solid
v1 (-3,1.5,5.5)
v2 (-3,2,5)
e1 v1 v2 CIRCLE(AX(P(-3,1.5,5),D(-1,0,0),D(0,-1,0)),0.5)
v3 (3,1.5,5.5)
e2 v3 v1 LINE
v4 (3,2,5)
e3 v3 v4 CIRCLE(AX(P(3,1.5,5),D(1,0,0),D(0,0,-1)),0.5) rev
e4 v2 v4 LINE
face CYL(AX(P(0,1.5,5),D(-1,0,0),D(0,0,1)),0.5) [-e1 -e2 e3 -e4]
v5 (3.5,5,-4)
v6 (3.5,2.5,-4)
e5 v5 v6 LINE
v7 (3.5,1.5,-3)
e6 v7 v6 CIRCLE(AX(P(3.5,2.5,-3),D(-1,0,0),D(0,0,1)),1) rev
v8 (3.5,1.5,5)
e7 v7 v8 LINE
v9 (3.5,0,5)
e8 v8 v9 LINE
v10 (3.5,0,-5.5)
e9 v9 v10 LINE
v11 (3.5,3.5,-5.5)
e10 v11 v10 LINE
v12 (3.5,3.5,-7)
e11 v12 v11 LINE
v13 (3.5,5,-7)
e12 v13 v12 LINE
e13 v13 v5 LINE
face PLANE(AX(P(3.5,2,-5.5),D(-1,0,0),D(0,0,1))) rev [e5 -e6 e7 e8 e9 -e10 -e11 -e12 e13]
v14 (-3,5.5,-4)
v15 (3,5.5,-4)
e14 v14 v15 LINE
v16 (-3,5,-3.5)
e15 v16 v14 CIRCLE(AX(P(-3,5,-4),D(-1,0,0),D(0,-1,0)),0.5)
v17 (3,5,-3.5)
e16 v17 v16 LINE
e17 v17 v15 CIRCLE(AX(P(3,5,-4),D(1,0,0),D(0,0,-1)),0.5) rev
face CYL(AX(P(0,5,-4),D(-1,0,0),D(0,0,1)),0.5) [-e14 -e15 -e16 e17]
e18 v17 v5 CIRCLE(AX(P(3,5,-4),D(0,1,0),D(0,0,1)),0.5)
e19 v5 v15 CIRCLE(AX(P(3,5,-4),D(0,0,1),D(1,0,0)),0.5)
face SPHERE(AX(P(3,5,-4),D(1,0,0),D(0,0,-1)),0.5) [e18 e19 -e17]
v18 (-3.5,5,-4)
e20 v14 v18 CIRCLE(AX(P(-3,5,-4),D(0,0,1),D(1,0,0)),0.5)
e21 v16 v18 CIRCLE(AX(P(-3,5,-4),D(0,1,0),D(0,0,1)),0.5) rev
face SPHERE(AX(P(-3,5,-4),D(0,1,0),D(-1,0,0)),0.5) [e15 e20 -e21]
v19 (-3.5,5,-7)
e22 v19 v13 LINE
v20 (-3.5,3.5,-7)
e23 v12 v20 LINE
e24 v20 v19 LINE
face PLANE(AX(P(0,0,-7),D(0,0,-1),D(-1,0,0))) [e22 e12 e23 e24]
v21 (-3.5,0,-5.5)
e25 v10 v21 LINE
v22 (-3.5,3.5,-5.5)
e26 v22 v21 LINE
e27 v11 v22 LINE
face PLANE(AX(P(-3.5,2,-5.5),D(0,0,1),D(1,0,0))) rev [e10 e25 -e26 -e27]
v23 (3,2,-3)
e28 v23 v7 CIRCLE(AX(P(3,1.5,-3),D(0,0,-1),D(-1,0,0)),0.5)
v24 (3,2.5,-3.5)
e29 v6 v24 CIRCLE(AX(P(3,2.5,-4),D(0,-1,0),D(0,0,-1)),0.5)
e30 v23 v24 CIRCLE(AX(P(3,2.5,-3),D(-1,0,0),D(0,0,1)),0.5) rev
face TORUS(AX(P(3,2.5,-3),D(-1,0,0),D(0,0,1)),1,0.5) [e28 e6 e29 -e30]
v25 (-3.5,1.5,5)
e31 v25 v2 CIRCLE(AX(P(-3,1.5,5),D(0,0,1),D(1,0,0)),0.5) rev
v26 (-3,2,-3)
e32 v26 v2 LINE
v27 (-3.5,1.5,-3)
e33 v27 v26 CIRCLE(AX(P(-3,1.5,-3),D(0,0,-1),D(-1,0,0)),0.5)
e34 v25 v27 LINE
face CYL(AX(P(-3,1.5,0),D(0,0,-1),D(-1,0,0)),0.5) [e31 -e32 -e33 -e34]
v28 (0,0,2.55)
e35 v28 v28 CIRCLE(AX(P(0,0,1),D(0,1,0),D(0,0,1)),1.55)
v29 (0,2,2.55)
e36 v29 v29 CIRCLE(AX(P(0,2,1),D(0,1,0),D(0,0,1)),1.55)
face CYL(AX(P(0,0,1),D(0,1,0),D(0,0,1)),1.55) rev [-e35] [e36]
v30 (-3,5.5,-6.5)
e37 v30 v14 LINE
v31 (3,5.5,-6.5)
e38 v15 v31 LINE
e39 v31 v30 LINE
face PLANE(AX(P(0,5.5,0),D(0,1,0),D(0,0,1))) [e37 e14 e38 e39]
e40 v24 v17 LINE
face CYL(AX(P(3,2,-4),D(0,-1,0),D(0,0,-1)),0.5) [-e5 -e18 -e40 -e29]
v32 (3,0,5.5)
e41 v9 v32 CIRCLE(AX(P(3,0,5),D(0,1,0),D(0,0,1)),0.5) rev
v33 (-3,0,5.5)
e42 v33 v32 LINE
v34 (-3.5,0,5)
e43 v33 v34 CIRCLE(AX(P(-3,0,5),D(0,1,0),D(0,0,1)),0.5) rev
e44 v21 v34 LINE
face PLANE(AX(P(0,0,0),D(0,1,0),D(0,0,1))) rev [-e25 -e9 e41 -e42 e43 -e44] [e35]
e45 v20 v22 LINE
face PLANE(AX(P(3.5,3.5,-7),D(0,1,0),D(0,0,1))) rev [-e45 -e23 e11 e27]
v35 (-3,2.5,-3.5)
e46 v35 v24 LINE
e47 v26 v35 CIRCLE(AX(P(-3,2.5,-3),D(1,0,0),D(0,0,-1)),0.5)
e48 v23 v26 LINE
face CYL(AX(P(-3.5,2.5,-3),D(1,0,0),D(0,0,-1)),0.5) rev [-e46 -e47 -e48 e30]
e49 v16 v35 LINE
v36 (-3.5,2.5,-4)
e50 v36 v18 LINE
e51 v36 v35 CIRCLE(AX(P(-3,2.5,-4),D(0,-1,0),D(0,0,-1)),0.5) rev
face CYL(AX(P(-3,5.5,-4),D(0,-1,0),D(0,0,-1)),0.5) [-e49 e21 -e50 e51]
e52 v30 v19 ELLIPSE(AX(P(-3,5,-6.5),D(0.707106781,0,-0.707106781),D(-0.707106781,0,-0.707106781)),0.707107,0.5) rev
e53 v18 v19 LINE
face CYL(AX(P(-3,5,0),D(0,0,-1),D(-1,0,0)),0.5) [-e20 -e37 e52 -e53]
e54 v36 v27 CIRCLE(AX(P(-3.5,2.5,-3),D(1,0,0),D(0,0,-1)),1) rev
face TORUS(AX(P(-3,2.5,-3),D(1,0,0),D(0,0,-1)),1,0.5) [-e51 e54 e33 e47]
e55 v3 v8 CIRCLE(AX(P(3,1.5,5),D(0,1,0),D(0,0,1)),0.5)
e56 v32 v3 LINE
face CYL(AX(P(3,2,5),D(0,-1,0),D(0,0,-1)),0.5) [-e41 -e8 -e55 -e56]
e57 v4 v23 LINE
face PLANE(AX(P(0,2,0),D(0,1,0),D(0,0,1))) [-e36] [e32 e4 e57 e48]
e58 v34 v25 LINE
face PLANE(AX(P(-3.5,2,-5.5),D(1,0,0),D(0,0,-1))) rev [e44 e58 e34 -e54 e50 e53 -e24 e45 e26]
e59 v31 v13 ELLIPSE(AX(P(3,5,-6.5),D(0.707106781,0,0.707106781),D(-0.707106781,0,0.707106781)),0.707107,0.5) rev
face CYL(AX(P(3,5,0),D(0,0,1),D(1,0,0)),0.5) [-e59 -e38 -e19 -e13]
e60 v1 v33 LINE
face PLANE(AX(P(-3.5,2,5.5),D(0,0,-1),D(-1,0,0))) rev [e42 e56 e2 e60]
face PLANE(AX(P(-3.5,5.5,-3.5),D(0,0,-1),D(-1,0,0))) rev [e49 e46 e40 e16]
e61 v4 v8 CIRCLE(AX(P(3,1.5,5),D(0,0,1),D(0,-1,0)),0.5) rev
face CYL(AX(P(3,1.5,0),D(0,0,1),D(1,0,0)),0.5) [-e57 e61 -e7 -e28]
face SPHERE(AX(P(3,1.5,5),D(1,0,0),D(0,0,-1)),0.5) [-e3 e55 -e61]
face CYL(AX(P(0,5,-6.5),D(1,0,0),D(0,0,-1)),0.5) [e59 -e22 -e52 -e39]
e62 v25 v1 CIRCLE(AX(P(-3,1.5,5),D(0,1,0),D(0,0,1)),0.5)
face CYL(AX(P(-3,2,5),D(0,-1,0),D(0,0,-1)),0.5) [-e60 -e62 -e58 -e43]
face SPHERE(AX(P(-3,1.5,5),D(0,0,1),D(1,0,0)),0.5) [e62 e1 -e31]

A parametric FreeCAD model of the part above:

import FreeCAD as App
import Part
import Sketcher


def edges_at(feature, points):
    """Names of the edges that pass closest to the given points."""
    edges = feature.Shape.Edges
    near = lambda p: min(range(len(edges)), key=lambda i: edges[i].distToShape(Part.Vertex(*p))[0])
    return sorted({f"Edge{near(p) + 1}" for p in points})

doc = App.newDocument("Part")
body = doc.addObject("PartDesign::Body", "Body")

# Sketch on XZ plane
sketch1 = doc.addObject("Sketcher::SketchObject", "Sketch")
body.addObject(sketch1)
sketch1.AttachmentSupport = (doc.XZ_Plane, [""])
sketch1.MapMode = "FlatFace"
sketch1.addGeometry([
    Part.LineSegment(App.Vector(-3.5, -5.5, 0), App.Vector(-3.5, 5.5, 0)),
    Part.LineSegment(App.Vector(-3.5, 5.5, 0), App.Vector(3.5, 5.5, 0)),
    Part.LineSegment(App.Vector(3.5, 5.5, 0), App.Vector(3.5, -5.5, 0)),
    Part.LineSegment(App.Vector(3.5, -5.5, 0), App.Vector(-3.5, -5.5, 0)),
], False)
sketch1.addConstraint([
    Sketcher.Constraint("Coincident", 0, 2, 1, 1),
    Sketcher.Constraint("Coincident", 1, 2, 2, 1),
    Sketcher.Constraint("Coincident", 2, 2, 3, 1),
    Sketcher.Constraint("Coincident", 3, 2, 0, 1),
    Sketcher.Constraint("Vertical", 0),
    Sketcher.Constraint("Horizontal", 1),
    Sketcher.Constraint("Vertical", 2),
    Sketcher.Constraint("Horizontal", 3),
    Sketcher.Constraint("Symmetric", 0, 2, 2, 2, -1, 1),
    Sketcher.Constraint("DistanceX", 1, 1, 1, 2, 7.0),
    Sketcher.Constraint("DistanceY", 0, 1, 0, 2, 11.0),
])
pad1 = doc.addObject("PartDesign::Pad", "Pad")
body.addObject(pad1)
pad1.Profile = sketch1
pad1.Length = 2
pad1.Reversed = True

# Sketch on XZ plane
sketch2 = doc.addObject("Sketcher::SketchObject", "Sketch001")
body.addObject(sketch2)
sketch2.AttachmentSupport = (doc.XZ_Plane, [""])
sketch2.MapMode = "FlatFace"
sketch2.AttachmentOffset = App.Placement(App.Vector(0, 0, -2), App.Rotation())
sketch2.addGeometry([
    Part.LineSegment(App.Vector(-3.5, -5.5, 0), App.Vector(-3.5, -3.5, 0)),
    Part.LineSegment(App.Vector(-3.5, -3.5, 0), App.Vector(3.5, -3.5, 0)),
    Part.LineSegment(App.Vector(3.5, -3.5, 0), App.Vector(3.5, -5.5, 0)),
    Part.LineSegment(App.Vector(3.5, -5.5, 0), App.Vector(-3.5, -5.5, 0)),
], False)
sketch2.addConstraint([
    Sketcher.Constraint("Coincident", 0, 2, 1, 1),
    Sketcher.Constraint("Coincident", 1, 2, 2, 1),
    Sketcher.Constraint("Coincident", 2, 2, 3, 1),
    Sketcher.Constraint("Coincident", 3, 2, 0, 1),
    Sketcher.Constraint("Vertical", 0),
    Sketcher.Constraint("Horizontal", 1),
    Sketcher.Constraint("Vertical", 2),
    Sketcher.Constraint("Horizontal", 3),
    Sketcher.Constraint("DistanceX", 1, 1, 1, 2, 7.0),
    Sketcher.Constraint("DistanceY", 0, 1, 0, 2, 2.0),
    Sketcher.Constraint("DistanceX", 0, 2, -1, 1, 3.5),
    Sketcher.Constraint("DistanceY", 0, 2, -1, 1, 3.5),
])
pad2 = doc.addObject("PartDesign::Pad", "Pad001")
body.addObject(pad2)
pad2.Profile = sketch2
pad2.Length = 3.5
pad2.Reversed = True

# Sketch on XY plane
sketch3 = doc.addObject("Sketcher::SketchObject", "Sketch002")
body.addObject(sketch3)
sketch3.AttachmentSupport = (doc.XY_Plane, [""])
sketch3.MapMode = "FlatFace"
sketch3.AttachmentOffset = App.Placement(App.Vector(0, 0, -5.5), App.Rotation())
sketch3.addGeometry([
    Part.LineSegment(App.Vector(3.5, 5.5, 0), App.Vector(3.5, 3.5, 0)),
    Part.LineSegment(App.Vector(3.5, 3.5, 0), App.Vector(-3.5, 3.5, 0)),
    Part.LineSegment(App.Vector(-3.5, 3.5, 0), App.Vector(-3.5, 5.5, 0)),
    Part.LineSegment(App.Vector(-3.5, 5.5, 0), App.Vector(3.5, 5.5, 0)),
], False)
sketch3.addConstraint([
    Sketcher.Constraint("Coincident", 0, 2, 1, 1),
    Sketcher.Constraint("Coincident", 1, 2, 2, 1),
    Sketcher.Constraint("Coincident", 2, 2, 3, 1),
    Sketcher.Constraint("Coincident", 3, 2, 0, 1),
    Sketcher.Constraint("Vertical", 0),
    Sketcher.Constraint("Horizontal", 1),
    Sketcher.Constraint("Vertical", 2),
    Sketcher.Constraint("Horizontal", 3),
    Sketcher.Constraint("DistanceX", 1, 2, 1, 1, 7.0),
    Sketcher.Constraint("DistanceY", 0, 2, 0, 1, 2.0),
    Sketcher.Constraint("DistanceX", -1, 1, 0, 2, 3.5),
    Sketcher.Constraint("DistanceY", -1, 1, 0, 2, 3.5),
])
pad3 = doc.addObject("PartDesign::Pad", "Pad002")
body.addObject(pad3)
pad3.Profile = sketch3
pad3.Length = 1.5
pad3.Reversed = True

# Sketch on XZ plane
sketch4 = doc.addObject("Sketcher::SketchObject", "Sketch003")
body.addObject(sketch4)
sketch4.AttachmentSupport = (doc.XZ_Plane, [""])
sketch4.MapMode = "FlatFace"
sketch4.AttachmentOffset = App.Placement(App.Vector(0, 0, -2), App.Rotation())
sketch4.addGeometry(Part.Circle(App.Vector(0, 1, 0), App.Vector(0, 0, 1), 1.55), False)
sketch4.addConstraint([
    Sketcher.Constraint("PointOnObject", 0, 3, -2),
    Sketcher.Constraint("Diameter", 0, 3.1),
    Sketcher.Constraint("DistanceY", -1, 1, 0, 3, 1.0),
])
pocket1 = doc.addObject("PartDesign::Pocket", "Pocket")
body.addObject(pocket1)
pocket1.Profile = sketch4
pocket1.Length = 2
pocket1.Reversed = True
doc.recompute()

fillet = doc.addObject("PartDesign::Fillet", "Fillet")
body.addObject(fillet)
fillet.Base = (pocket1, edges_at(pocket1, [
    (-3.5, 2, 1),
    (0, 2, -3.5),
    (-3.5, 3.75, -3.5),
    (0, 2, 5.5),
    (3.5, 3.75, -3.5),
    (-3.5, 5.5, -5.25),
    (0, 5.5, -3.5),
    (3.5, 5.5, -5.25),
    (0, 5.5, -7),
    (3.5, 2, 1),
    (3.5, 1, 5.5),
    (-3.5, 1, 5.5),
]))
fillet.Radius = 0.5

doc.recompute()
